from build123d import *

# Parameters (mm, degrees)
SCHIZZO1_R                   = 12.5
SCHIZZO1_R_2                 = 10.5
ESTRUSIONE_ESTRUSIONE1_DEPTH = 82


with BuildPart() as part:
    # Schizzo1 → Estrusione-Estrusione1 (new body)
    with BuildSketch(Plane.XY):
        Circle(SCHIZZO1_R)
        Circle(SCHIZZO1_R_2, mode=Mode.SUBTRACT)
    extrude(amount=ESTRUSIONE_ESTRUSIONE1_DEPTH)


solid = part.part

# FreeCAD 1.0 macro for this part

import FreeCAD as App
import Part
import Sketcher
Q = App.Units.Quantity

doc = App.newDocument("Part")
body = doc.addObject("PartDesign::Body", "Body")

# Sketch on XY plane
sketch1 = doc.addObject("Sketcher::SketchObject", "Sketch")
body.addObject(sketch1)
sketch1.AttachmentSupport = (doc.XY_Plane, [""])
sketch1.MapMode = "FlatFace"
sketch1.addGeometry([
    Part.Circle(App.Vector(0, 0, 0), App.Vector(0, 0, 1), 12.5),
    Part.Circle(App.Vector(0, 0, 0), App.Vector(0, 0, 1), 10.5),
], False)
sketch1.addConstraint([
    Sketcher.Constraint("Coincident", 0, 3, -1, 1),
    Sketcher.Constraint("Coincident", 1, 3, -1, 1),
    Sketcher.Constraint("Diameter", 0, Q("25 mm")),
    Sketcher.Constraint("Diameter", 1, Q("21 mm")),
])
pad1 = doc.addObject("PartDesign::Pad", "Pad")
body.addObject(pad1)
pad1.Profile = sketch1
pad1.Length = 82

doc.recompute()
